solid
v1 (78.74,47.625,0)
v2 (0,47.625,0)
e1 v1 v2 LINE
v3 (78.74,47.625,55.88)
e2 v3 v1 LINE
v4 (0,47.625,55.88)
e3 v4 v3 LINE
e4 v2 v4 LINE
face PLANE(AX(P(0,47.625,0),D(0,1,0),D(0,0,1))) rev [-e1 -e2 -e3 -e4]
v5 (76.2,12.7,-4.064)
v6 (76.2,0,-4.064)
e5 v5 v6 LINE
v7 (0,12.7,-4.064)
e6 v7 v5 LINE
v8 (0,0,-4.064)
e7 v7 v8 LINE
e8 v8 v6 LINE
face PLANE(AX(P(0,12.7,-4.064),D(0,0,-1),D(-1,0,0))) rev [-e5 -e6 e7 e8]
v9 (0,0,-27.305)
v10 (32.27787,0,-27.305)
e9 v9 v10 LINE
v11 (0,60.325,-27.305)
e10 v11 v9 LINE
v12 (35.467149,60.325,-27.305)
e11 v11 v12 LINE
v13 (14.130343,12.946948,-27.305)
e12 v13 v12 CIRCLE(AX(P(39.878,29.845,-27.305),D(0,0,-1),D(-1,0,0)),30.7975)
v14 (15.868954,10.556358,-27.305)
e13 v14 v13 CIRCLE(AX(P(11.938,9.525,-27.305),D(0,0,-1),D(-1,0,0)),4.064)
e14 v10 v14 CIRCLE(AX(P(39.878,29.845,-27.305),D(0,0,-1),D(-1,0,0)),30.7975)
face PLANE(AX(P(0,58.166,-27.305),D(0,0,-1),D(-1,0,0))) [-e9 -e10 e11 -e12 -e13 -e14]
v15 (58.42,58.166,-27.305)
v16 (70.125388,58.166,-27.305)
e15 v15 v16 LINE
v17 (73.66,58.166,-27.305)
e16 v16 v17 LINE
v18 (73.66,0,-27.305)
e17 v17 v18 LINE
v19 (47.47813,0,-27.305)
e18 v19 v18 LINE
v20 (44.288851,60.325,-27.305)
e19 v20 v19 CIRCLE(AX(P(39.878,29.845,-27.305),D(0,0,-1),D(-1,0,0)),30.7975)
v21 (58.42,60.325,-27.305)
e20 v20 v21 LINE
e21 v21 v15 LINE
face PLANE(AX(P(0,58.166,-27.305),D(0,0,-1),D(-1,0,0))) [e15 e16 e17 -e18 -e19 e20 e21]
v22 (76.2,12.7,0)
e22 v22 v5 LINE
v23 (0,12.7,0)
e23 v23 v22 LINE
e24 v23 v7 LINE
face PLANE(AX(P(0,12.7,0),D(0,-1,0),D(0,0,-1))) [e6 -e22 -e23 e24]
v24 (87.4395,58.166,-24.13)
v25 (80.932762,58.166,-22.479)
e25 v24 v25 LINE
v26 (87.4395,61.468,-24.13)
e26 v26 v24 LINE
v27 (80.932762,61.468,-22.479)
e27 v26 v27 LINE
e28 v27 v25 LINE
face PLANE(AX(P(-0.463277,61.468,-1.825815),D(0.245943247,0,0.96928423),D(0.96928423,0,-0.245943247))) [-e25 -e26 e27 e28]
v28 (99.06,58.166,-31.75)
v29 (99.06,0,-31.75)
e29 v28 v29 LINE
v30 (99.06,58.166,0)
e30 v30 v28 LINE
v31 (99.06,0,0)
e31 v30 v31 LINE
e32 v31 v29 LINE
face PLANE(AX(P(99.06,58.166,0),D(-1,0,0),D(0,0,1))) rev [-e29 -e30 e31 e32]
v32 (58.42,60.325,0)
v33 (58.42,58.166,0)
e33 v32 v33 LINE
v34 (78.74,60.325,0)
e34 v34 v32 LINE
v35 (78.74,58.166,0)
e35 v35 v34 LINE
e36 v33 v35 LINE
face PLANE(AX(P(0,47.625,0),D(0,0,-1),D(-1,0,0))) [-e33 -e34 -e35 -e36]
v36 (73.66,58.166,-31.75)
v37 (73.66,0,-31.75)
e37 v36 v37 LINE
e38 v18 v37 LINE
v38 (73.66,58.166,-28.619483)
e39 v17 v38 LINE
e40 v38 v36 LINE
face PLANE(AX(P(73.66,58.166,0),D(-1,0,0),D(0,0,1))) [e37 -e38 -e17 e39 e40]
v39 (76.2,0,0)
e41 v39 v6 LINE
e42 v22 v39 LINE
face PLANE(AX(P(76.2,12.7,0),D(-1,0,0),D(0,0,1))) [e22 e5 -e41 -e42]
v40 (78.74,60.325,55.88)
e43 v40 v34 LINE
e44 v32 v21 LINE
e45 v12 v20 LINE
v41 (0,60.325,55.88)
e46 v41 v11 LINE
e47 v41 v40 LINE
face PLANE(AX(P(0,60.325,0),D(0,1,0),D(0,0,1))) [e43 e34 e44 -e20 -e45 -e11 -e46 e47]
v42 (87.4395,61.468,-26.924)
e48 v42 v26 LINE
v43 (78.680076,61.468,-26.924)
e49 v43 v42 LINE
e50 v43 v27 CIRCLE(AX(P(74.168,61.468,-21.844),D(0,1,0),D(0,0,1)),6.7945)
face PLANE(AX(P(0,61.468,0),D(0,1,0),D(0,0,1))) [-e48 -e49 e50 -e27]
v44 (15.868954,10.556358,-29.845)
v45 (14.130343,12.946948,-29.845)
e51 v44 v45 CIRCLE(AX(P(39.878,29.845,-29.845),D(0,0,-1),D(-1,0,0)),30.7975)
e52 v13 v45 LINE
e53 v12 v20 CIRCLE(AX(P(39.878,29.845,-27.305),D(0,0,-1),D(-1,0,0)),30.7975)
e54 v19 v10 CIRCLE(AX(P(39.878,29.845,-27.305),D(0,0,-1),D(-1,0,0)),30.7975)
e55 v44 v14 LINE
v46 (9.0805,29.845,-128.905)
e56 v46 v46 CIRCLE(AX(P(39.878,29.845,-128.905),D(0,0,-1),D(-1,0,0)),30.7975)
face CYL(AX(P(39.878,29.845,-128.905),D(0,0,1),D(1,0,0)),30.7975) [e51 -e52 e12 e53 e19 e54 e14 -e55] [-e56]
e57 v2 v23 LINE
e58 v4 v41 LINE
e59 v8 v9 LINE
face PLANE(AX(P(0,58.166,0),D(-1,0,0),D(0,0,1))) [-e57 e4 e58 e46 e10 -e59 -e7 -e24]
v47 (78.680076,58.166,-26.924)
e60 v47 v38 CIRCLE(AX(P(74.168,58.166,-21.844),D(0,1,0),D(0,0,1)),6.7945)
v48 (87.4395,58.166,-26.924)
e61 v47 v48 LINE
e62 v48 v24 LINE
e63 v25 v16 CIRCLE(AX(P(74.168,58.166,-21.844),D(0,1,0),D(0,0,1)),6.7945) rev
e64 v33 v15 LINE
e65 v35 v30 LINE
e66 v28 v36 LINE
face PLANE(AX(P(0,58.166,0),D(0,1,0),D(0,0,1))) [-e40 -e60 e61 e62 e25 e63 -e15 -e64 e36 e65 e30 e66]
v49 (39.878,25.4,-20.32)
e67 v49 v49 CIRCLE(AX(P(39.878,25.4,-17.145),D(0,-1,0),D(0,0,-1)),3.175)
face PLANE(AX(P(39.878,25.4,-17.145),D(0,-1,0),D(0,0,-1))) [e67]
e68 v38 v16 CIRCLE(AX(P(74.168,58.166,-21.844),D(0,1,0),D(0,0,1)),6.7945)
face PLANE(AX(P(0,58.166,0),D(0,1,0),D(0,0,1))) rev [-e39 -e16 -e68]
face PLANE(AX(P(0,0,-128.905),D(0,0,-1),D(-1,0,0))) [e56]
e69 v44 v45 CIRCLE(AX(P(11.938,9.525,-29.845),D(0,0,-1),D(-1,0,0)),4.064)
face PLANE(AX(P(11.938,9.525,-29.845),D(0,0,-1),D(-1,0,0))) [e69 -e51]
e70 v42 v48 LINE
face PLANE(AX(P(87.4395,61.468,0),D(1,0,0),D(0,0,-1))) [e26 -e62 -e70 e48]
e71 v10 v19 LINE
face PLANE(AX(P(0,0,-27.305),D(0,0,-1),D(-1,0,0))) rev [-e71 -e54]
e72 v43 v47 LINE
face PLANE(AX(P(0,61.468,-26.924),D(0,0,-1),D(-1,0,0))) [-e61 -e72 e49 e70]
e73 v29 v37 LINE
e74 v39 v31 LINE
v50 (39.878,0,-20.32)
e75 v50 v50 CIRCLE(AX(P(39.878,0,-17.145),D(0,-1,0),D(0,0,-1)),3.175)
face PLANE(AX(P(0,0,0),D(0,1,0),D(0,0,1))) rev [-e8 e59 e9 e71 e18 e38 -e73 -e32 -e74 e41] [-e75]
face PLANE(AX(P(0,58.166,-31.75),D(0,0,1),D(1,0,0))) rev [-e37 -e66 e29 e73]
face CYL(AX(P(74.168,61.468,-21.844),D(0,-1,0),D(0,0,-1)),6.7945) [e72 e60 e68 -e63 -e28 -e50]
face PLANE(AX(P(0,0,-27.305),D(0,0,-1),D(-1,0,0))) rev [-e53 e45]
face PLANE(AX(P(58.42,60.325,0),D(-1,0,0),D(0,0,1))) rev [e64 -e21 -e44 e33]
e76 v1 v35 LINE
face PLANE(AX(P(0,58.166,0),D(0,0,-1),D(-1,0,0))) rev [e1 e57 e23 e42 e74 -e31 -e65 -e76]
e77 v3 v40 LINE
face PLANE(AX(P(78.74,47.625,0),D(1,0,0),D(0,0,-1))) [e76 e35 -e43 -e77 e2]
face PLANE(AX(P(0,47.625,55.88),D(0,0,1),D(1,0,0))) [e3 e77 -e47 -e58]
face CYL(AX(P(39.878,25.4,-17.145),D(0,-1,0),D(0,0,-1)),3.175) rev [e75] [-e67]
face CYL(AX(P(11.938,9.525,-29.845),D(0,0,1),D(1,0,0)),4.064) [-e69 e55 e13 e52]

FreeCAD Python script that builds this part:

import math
import FreeCAD as App
import Part
import Sketcher
from FreeCAD import Vector
Q = App.Units.Quantity


def add_polygon(sketch, points):
    """Adds a closed chain of lines whose ends are joined by coincident constraints."""
    first, n = sketch.GeometryCount, len(points)
    for a, b in zip(points, points[1:] + points[:1]):
        sketch.addGeometry(Part.LineSegment(App.Vector(*a, 0), App.Vector(*b, 0)), False)
    for i in range(n):
        sketch.addConstraint(Sketcher.Constraint("Coincident", first + i, 2, first + (i + 1) % n, 1))

doc = App.newDocument("Part")
body = doc.addObject("PartDesign::Body", "Body")

# Sketch on XZ plane
sketch1 = doc.addObject("Sketcher::SketchObject", "Sketch")
body.addObject(sketch1)
sketch1.AttachmentSupport = (doc.XZ_Plane, [""])
sketch1.MapMode = "FlatFace"
add_polygon(sketch1, [(0, -27.3), (0, 0), (99.1, 0), (99.1, -31.8), (73.7, -31.8), (73.7, -27.3)])  # lines 0-5
sketch1.addConstraint([
    Sketcher.Constraint("Vertical", 0),
    Sketcher.Constraint("Horizontal", 1),
    Sketcher.Constraint("Vertical", 2),
    Sketcher.Constraint("Horizontal", 3),
    Sketcher.Constraint("Vertical", 4),
    Sketcher.Constraint("Horizontal", 5),
    Sketcher.Constraint("Coincident", 0, 2, -1, 1),
    Sketcher.Constraint("DistanceX", 3, 2, 3, 1, Q("1 in")),
    Sketcher.Constraint("DistanceX", 1, 1, 1, 2, Q("3.9 in")),
    Sketcher.Constraint("DistanceY", 2, 2, 2, 1, Q("1.25 in")),
    Sketcher.Constraint("DistanceY", 0, 1, 0, 2, Q("1.075 in")),
])
pad1 = doc.addObject("PartDesign::Pad", "Pad")
body.addObject(pad1)
pad1.Profile = sketch1
pad1.Length = Q("2.29 in")
pad1.Reversed = True

# Sketch on XZ plane
sketch2 = doc.addObject("Sketcher::SketchObject", "Sketch001")
body.addObject(sketch2)
sketch2.AttachmentSupport = (doc.XZ_Plane, [""])
sketch2.MapMode = "FlatFace"
sketch2.addGeometry(Part.Circle(Vector(39.9, -17.1, 0), Vector(0, 0, 1), 3.2), False)
sketch2.addConstraint([
    Sketcher.Constraint("Diameter", 0, Q("0.25 in")),
    Sketcher.Constraint("DistanceX", -1, 1, 0, 3, Q("1.57 in")),
    Sketcher.Constraint("DistanceY", 0, 3, -1, 1, Q("0.675 in")),
])
pocket1 = doc.addObject("PartDesign::Pocket", "Pocket")
body.addObject(pocket1)
pocket1.Profile = sketch2
pocket1.Length = Q("1 in")

# Sketch on XY plane
sketch3 = doc.addObject("Sketcher::SketchObject", "Sketch002")
body.addObject(sketch3)
sketch3.AttachmentSupport = (doc.XY_Plane, [""])
sketch3.MapMode = "FlatFace"
sketch3.AttachmentOffset = App.Placement(Vector(0, 0, -1.075 * 25.4), App.Rotation())
sketch3.addGeometry(Part.Circle(Vector(40, 30, 0), Vector(0, 0, 1), 31), False)
sketch3.addConstraint([
    Sketcher.Constraint("Diameter", 0, Q("2.425 in")),
    Sketcher.Constraint("DistanceX", -1, 1, 0, 3, Q("1.57 in")),
    Sketcher.Constraint("DistanceY", -1, 1, 0, 3, Q("1.175 in")),
])
pad2 = doc.addObject("PartDesign::Pad", "Pad001")
body.addObject(pad2)
pad2.Profile = sketch3
pad2.Length = Q("4 in")
pad2.Reversed = True

# Sketch on XY plane
sketch4 = doc.addObject("Sketcher::SketchObject", "Sketch003")
body.addObject(sketch4)
sketch4.AttachmentSupport = (doc.XY_Plane, [""])
sketch4.MapMode = "FlatFace"
sketch4.AttachmentOffset = App.Placement(Vector(0, 0, -1.075 * 25.4), App.Rotation())
sketch4.addGeometry(Part.Circle(Vector(11.9, 9.5, 0), Vector(0, 0, 1), 4.1), False)
sketch4.addConstraint([
    Sketcher.Constraint("Diameter", 0, Q("0.32 in")),
    Sketcher.Constraint("DistanceX", -1, 1, 0, 3, Q("0.47 in")),
    Sketcher.Constraint("DistanceY", -1, 1, 0, 3, Q("0.375 in")),
])
pad3 = doc.addObject("PartDesign::Pad", "Pad002")
body.addObject(pad3)
pad3.Profile = sketch4
pad3.Length = Q("0.1 in")
pad3.Reversed = True

# Sketch on XZ plane
sketch5 = doc.addObject("Sketcher::SketchObject", "Sketch004")
body.addObject(sketch5)
sketch5.AttachmentSupport = (doc.XZ_Plane, [""])
sketch5.MapMode = "FlatFace"
sketch5.AttachmentOffset = App.Placement(Vector(0, 0, -2.29 * 25.4), App.Rotation())
sketch5.addGeometry([
    Part.ArcOfCircle(Part.Circle(Vector(74.2, -21.8, 0), Vector(0, 0, 1), 6.8), math.radians(0), math.radians(233)),  # 0
    Part.ArcOfCircle(Part.Circle(Vector(74.2, -21.8, 0), Vector(0, 0, 1), 6.8), math.radians(-5.36), math.radians(0)),  # 1
    Part.LineSegment(Vector(80.9, -22.5, 0), Vector(87.4, -24.1, 0)),  # 2
    Part.LineSegment(Vector(87.4, -24.1, 0), Vector(87.4, -26.9, 0)),  # 3
    Part.LineSegment(Vector(87.4, -26.9, 0), Vector(78.7, -26.9, 0)),  # 4
    Part.ArcOfCircle(Part.Circle(Vector(74.2, -21.8, 0), Vector(0, 0, 1), 6.8), math.radians(-94), math.radians(-48)),  # 5
    Part.ArcOfCircle(Part.Circle(Vector(74.2, -21.8, 0), Vector(0, 0, 1), 6.8), math.radians(-127), math.radians(-94)),  # 6
], False)
sketch5.addConstraint([
    Sketcher.Constraint("Tangent", 0, 1, 1, 2),
    Sketcher.Constraint("Coincident", 1, 1, 2, 1),
    Sketcher.Constraint("Coincident", 2, 2, 3, 1),
    Sketcher.Constraint("Coincident", 3, 2, 4, 1),
    Sketcher.Constraint("Coincident", 4, 2, 5, 2),
    Sketcher.Constraint("Tangent", 5, 1, 6, 2),
    Sketcher.Constraint("Tangent", 6, 1, 0, 2),
    Sketcher.Constraint("Vertical", 3),
    Sketcher.Constraint("Horizontal", 4),
    Sketcher.Constraint("Coincident", 5, 3, 0, 3),
    Sketcher.Constraint("Equal", 0, 1),
    Sketcher.Constraint("Horizontal", 6, 3, 0, 1),
    Sketcher.Constraint("DistanceY", 3, 2, 3, 1, Q("0.11 in")),
    Sketcher.Constraint("DistanceX", -1, 1, 5, 1, Q("2.9 in")),
    Sketcher.Constraint("Radius", 0, Q("0.2675 in")),
    Sketcher.Constraint("DistanceY", 3, 2, 0, 1, Q("0.2 in")),
    Sketcher.Constraint("DistanceX", -1, 1, 0, 3, Q("2.92 in")),
    Sketcher.Constraint("DistanceY", 0, 3, -1, 1, Q("0.86 in")),
    Sketcher.Constraint("DistanceY", 1, 1, -1, 1, Q("0.885 in")),
    Sketcher.Constraint("DistanceY", 6, 1, -1, 1, Q("1.075 in")),
    Sketcher.Constraint("DistanceX", 0, 1, 2, 2, Q("0.255 in")),
])
pad4 = doc.addObject("PartDesign::Pad", "Pad003")
body.addObject(pad4)
pad4.Profile = sketch5
pad4.Length = Q("0.13 in")
pad4.Reversed = True

# Sketch on XZ plane
sketch6 = doc.addObject("Sketcher::SketchObject", "Sketch005")
body.addObject(sketch6)
sketch6.AttachmentSupport = (doc.XZ_Plane, [""])
sketch6.MapMode = "FlatFace"
sketch6.AttachmentOffset = App.Placement(Vector(0, 0, -2.29 * 25.4), App.Rotation())
add_polygon(sketch6, [(0, -27), (0, 0), (58, 0), (58, -27)])  # lines 0-3
sketch6.addConstraint([
    Sketcher.Constraint("Vertical", 0),
    Sketcher.Constraint("Horizontal", 1),
    Sketcher.Constraint("Vertical", 2),
    Sketcher.Constraint("Horizontal", 3),
    Sketcher.Constraint("Coincident", 0, 2, -1, 1),
    Sketcher.Constraint("DistanceX", 1, 1, 1, 2, Q("2.3 in")),
    Sketcher.Constraint("DistanceY", 0, 1, 0, 2, Q("1.075 in")),
])
pad5 = doc.addObject("PartDesign::Pad", "Pad004")
body.addObject(pad5)
pad5.Profile = sketch6
pad5.Length = Q("0.085 in")
pad5.Reversed = True

# Sketch on XZ plane
sketch7 = doc.addObject("Sketcher::SketchObject", "Sketch006")
body.addObject(sketch7)
sketch7.AttachmentSupport = (doc.XZ_Plane, [""])
sketch7.MapMode = "FlatFace"
add_polygon(sketch7, [(0, 0), (0, -4.1), (76.2, -4.1), (76.2, 0)])  # lines 0-3
sketch7.addConstraint([
    Sketcher.Constraint("Vertical", 0),
    Sketcher.Constraint("Horizontal", 1),
    Sketcher.Constraint("Vertical", 2),
    Sketcher.Constraint("Horizontal", 3),
    Sketcher.Constraint("Coincident", 3, 2, -1, 1),
    Sketcher.Constraint("DistanceX", 1, 1, 1, 2, Q("3 in")),
    Sketcher.Constraint("DistanceY", 0, 2, 0, 1, Q("0.16 in")),
])
pocket2 = doc.addObject("PartDesign::Pocket", "Pocket001")
body.addObject(pocket2)
pocket2.Profile = sketch7
pocket2.Length = Q("0.5 in")

# Sketch on XZ plane
sketch8 = doc.addObject("Sketcher::SketchObject", "Sketch007")
body.addObject(sketch8)
sketch8.AttachmentSupport = (doc.XZ_Plane, [""])
sketch8.MapMode = "FlatFace"
sketch8.AttachmentOffset = App.Placement(Vector(0, 0, -2.375 * 25.4), App.Rotation())
add_polygon(sketch8, [(0, 0), (0, 56), (79, 56), (79, 0)])  # lines 0-3
sketch8.addConstraint([
    Sketcher.Constraint("Vertical", 0),
    Sketcher.Constraint("Horizontal", 1),
    Sketcher.Constraint("Vertical", 2),
    Sketcher.Constraint("Horizontal", 3),
    Sketcher.Constraint("Coincident", 3, 2, -1, 1),
    Sketcher.Constraint("DistanceX", 1, 1, 1, 2, Q("3.1 in")),
    Sketcher.Constraint("DistanceY", 0, 1, 0, 2, Q("2.2 in")),
])
pad6 = doc.addObject("PartDesign::Pad", "Pad005")
body.addObject(pad6)
pad6.Profile = sketch8
pad6.Length = Q("0.5 in")

doc.recompute()
